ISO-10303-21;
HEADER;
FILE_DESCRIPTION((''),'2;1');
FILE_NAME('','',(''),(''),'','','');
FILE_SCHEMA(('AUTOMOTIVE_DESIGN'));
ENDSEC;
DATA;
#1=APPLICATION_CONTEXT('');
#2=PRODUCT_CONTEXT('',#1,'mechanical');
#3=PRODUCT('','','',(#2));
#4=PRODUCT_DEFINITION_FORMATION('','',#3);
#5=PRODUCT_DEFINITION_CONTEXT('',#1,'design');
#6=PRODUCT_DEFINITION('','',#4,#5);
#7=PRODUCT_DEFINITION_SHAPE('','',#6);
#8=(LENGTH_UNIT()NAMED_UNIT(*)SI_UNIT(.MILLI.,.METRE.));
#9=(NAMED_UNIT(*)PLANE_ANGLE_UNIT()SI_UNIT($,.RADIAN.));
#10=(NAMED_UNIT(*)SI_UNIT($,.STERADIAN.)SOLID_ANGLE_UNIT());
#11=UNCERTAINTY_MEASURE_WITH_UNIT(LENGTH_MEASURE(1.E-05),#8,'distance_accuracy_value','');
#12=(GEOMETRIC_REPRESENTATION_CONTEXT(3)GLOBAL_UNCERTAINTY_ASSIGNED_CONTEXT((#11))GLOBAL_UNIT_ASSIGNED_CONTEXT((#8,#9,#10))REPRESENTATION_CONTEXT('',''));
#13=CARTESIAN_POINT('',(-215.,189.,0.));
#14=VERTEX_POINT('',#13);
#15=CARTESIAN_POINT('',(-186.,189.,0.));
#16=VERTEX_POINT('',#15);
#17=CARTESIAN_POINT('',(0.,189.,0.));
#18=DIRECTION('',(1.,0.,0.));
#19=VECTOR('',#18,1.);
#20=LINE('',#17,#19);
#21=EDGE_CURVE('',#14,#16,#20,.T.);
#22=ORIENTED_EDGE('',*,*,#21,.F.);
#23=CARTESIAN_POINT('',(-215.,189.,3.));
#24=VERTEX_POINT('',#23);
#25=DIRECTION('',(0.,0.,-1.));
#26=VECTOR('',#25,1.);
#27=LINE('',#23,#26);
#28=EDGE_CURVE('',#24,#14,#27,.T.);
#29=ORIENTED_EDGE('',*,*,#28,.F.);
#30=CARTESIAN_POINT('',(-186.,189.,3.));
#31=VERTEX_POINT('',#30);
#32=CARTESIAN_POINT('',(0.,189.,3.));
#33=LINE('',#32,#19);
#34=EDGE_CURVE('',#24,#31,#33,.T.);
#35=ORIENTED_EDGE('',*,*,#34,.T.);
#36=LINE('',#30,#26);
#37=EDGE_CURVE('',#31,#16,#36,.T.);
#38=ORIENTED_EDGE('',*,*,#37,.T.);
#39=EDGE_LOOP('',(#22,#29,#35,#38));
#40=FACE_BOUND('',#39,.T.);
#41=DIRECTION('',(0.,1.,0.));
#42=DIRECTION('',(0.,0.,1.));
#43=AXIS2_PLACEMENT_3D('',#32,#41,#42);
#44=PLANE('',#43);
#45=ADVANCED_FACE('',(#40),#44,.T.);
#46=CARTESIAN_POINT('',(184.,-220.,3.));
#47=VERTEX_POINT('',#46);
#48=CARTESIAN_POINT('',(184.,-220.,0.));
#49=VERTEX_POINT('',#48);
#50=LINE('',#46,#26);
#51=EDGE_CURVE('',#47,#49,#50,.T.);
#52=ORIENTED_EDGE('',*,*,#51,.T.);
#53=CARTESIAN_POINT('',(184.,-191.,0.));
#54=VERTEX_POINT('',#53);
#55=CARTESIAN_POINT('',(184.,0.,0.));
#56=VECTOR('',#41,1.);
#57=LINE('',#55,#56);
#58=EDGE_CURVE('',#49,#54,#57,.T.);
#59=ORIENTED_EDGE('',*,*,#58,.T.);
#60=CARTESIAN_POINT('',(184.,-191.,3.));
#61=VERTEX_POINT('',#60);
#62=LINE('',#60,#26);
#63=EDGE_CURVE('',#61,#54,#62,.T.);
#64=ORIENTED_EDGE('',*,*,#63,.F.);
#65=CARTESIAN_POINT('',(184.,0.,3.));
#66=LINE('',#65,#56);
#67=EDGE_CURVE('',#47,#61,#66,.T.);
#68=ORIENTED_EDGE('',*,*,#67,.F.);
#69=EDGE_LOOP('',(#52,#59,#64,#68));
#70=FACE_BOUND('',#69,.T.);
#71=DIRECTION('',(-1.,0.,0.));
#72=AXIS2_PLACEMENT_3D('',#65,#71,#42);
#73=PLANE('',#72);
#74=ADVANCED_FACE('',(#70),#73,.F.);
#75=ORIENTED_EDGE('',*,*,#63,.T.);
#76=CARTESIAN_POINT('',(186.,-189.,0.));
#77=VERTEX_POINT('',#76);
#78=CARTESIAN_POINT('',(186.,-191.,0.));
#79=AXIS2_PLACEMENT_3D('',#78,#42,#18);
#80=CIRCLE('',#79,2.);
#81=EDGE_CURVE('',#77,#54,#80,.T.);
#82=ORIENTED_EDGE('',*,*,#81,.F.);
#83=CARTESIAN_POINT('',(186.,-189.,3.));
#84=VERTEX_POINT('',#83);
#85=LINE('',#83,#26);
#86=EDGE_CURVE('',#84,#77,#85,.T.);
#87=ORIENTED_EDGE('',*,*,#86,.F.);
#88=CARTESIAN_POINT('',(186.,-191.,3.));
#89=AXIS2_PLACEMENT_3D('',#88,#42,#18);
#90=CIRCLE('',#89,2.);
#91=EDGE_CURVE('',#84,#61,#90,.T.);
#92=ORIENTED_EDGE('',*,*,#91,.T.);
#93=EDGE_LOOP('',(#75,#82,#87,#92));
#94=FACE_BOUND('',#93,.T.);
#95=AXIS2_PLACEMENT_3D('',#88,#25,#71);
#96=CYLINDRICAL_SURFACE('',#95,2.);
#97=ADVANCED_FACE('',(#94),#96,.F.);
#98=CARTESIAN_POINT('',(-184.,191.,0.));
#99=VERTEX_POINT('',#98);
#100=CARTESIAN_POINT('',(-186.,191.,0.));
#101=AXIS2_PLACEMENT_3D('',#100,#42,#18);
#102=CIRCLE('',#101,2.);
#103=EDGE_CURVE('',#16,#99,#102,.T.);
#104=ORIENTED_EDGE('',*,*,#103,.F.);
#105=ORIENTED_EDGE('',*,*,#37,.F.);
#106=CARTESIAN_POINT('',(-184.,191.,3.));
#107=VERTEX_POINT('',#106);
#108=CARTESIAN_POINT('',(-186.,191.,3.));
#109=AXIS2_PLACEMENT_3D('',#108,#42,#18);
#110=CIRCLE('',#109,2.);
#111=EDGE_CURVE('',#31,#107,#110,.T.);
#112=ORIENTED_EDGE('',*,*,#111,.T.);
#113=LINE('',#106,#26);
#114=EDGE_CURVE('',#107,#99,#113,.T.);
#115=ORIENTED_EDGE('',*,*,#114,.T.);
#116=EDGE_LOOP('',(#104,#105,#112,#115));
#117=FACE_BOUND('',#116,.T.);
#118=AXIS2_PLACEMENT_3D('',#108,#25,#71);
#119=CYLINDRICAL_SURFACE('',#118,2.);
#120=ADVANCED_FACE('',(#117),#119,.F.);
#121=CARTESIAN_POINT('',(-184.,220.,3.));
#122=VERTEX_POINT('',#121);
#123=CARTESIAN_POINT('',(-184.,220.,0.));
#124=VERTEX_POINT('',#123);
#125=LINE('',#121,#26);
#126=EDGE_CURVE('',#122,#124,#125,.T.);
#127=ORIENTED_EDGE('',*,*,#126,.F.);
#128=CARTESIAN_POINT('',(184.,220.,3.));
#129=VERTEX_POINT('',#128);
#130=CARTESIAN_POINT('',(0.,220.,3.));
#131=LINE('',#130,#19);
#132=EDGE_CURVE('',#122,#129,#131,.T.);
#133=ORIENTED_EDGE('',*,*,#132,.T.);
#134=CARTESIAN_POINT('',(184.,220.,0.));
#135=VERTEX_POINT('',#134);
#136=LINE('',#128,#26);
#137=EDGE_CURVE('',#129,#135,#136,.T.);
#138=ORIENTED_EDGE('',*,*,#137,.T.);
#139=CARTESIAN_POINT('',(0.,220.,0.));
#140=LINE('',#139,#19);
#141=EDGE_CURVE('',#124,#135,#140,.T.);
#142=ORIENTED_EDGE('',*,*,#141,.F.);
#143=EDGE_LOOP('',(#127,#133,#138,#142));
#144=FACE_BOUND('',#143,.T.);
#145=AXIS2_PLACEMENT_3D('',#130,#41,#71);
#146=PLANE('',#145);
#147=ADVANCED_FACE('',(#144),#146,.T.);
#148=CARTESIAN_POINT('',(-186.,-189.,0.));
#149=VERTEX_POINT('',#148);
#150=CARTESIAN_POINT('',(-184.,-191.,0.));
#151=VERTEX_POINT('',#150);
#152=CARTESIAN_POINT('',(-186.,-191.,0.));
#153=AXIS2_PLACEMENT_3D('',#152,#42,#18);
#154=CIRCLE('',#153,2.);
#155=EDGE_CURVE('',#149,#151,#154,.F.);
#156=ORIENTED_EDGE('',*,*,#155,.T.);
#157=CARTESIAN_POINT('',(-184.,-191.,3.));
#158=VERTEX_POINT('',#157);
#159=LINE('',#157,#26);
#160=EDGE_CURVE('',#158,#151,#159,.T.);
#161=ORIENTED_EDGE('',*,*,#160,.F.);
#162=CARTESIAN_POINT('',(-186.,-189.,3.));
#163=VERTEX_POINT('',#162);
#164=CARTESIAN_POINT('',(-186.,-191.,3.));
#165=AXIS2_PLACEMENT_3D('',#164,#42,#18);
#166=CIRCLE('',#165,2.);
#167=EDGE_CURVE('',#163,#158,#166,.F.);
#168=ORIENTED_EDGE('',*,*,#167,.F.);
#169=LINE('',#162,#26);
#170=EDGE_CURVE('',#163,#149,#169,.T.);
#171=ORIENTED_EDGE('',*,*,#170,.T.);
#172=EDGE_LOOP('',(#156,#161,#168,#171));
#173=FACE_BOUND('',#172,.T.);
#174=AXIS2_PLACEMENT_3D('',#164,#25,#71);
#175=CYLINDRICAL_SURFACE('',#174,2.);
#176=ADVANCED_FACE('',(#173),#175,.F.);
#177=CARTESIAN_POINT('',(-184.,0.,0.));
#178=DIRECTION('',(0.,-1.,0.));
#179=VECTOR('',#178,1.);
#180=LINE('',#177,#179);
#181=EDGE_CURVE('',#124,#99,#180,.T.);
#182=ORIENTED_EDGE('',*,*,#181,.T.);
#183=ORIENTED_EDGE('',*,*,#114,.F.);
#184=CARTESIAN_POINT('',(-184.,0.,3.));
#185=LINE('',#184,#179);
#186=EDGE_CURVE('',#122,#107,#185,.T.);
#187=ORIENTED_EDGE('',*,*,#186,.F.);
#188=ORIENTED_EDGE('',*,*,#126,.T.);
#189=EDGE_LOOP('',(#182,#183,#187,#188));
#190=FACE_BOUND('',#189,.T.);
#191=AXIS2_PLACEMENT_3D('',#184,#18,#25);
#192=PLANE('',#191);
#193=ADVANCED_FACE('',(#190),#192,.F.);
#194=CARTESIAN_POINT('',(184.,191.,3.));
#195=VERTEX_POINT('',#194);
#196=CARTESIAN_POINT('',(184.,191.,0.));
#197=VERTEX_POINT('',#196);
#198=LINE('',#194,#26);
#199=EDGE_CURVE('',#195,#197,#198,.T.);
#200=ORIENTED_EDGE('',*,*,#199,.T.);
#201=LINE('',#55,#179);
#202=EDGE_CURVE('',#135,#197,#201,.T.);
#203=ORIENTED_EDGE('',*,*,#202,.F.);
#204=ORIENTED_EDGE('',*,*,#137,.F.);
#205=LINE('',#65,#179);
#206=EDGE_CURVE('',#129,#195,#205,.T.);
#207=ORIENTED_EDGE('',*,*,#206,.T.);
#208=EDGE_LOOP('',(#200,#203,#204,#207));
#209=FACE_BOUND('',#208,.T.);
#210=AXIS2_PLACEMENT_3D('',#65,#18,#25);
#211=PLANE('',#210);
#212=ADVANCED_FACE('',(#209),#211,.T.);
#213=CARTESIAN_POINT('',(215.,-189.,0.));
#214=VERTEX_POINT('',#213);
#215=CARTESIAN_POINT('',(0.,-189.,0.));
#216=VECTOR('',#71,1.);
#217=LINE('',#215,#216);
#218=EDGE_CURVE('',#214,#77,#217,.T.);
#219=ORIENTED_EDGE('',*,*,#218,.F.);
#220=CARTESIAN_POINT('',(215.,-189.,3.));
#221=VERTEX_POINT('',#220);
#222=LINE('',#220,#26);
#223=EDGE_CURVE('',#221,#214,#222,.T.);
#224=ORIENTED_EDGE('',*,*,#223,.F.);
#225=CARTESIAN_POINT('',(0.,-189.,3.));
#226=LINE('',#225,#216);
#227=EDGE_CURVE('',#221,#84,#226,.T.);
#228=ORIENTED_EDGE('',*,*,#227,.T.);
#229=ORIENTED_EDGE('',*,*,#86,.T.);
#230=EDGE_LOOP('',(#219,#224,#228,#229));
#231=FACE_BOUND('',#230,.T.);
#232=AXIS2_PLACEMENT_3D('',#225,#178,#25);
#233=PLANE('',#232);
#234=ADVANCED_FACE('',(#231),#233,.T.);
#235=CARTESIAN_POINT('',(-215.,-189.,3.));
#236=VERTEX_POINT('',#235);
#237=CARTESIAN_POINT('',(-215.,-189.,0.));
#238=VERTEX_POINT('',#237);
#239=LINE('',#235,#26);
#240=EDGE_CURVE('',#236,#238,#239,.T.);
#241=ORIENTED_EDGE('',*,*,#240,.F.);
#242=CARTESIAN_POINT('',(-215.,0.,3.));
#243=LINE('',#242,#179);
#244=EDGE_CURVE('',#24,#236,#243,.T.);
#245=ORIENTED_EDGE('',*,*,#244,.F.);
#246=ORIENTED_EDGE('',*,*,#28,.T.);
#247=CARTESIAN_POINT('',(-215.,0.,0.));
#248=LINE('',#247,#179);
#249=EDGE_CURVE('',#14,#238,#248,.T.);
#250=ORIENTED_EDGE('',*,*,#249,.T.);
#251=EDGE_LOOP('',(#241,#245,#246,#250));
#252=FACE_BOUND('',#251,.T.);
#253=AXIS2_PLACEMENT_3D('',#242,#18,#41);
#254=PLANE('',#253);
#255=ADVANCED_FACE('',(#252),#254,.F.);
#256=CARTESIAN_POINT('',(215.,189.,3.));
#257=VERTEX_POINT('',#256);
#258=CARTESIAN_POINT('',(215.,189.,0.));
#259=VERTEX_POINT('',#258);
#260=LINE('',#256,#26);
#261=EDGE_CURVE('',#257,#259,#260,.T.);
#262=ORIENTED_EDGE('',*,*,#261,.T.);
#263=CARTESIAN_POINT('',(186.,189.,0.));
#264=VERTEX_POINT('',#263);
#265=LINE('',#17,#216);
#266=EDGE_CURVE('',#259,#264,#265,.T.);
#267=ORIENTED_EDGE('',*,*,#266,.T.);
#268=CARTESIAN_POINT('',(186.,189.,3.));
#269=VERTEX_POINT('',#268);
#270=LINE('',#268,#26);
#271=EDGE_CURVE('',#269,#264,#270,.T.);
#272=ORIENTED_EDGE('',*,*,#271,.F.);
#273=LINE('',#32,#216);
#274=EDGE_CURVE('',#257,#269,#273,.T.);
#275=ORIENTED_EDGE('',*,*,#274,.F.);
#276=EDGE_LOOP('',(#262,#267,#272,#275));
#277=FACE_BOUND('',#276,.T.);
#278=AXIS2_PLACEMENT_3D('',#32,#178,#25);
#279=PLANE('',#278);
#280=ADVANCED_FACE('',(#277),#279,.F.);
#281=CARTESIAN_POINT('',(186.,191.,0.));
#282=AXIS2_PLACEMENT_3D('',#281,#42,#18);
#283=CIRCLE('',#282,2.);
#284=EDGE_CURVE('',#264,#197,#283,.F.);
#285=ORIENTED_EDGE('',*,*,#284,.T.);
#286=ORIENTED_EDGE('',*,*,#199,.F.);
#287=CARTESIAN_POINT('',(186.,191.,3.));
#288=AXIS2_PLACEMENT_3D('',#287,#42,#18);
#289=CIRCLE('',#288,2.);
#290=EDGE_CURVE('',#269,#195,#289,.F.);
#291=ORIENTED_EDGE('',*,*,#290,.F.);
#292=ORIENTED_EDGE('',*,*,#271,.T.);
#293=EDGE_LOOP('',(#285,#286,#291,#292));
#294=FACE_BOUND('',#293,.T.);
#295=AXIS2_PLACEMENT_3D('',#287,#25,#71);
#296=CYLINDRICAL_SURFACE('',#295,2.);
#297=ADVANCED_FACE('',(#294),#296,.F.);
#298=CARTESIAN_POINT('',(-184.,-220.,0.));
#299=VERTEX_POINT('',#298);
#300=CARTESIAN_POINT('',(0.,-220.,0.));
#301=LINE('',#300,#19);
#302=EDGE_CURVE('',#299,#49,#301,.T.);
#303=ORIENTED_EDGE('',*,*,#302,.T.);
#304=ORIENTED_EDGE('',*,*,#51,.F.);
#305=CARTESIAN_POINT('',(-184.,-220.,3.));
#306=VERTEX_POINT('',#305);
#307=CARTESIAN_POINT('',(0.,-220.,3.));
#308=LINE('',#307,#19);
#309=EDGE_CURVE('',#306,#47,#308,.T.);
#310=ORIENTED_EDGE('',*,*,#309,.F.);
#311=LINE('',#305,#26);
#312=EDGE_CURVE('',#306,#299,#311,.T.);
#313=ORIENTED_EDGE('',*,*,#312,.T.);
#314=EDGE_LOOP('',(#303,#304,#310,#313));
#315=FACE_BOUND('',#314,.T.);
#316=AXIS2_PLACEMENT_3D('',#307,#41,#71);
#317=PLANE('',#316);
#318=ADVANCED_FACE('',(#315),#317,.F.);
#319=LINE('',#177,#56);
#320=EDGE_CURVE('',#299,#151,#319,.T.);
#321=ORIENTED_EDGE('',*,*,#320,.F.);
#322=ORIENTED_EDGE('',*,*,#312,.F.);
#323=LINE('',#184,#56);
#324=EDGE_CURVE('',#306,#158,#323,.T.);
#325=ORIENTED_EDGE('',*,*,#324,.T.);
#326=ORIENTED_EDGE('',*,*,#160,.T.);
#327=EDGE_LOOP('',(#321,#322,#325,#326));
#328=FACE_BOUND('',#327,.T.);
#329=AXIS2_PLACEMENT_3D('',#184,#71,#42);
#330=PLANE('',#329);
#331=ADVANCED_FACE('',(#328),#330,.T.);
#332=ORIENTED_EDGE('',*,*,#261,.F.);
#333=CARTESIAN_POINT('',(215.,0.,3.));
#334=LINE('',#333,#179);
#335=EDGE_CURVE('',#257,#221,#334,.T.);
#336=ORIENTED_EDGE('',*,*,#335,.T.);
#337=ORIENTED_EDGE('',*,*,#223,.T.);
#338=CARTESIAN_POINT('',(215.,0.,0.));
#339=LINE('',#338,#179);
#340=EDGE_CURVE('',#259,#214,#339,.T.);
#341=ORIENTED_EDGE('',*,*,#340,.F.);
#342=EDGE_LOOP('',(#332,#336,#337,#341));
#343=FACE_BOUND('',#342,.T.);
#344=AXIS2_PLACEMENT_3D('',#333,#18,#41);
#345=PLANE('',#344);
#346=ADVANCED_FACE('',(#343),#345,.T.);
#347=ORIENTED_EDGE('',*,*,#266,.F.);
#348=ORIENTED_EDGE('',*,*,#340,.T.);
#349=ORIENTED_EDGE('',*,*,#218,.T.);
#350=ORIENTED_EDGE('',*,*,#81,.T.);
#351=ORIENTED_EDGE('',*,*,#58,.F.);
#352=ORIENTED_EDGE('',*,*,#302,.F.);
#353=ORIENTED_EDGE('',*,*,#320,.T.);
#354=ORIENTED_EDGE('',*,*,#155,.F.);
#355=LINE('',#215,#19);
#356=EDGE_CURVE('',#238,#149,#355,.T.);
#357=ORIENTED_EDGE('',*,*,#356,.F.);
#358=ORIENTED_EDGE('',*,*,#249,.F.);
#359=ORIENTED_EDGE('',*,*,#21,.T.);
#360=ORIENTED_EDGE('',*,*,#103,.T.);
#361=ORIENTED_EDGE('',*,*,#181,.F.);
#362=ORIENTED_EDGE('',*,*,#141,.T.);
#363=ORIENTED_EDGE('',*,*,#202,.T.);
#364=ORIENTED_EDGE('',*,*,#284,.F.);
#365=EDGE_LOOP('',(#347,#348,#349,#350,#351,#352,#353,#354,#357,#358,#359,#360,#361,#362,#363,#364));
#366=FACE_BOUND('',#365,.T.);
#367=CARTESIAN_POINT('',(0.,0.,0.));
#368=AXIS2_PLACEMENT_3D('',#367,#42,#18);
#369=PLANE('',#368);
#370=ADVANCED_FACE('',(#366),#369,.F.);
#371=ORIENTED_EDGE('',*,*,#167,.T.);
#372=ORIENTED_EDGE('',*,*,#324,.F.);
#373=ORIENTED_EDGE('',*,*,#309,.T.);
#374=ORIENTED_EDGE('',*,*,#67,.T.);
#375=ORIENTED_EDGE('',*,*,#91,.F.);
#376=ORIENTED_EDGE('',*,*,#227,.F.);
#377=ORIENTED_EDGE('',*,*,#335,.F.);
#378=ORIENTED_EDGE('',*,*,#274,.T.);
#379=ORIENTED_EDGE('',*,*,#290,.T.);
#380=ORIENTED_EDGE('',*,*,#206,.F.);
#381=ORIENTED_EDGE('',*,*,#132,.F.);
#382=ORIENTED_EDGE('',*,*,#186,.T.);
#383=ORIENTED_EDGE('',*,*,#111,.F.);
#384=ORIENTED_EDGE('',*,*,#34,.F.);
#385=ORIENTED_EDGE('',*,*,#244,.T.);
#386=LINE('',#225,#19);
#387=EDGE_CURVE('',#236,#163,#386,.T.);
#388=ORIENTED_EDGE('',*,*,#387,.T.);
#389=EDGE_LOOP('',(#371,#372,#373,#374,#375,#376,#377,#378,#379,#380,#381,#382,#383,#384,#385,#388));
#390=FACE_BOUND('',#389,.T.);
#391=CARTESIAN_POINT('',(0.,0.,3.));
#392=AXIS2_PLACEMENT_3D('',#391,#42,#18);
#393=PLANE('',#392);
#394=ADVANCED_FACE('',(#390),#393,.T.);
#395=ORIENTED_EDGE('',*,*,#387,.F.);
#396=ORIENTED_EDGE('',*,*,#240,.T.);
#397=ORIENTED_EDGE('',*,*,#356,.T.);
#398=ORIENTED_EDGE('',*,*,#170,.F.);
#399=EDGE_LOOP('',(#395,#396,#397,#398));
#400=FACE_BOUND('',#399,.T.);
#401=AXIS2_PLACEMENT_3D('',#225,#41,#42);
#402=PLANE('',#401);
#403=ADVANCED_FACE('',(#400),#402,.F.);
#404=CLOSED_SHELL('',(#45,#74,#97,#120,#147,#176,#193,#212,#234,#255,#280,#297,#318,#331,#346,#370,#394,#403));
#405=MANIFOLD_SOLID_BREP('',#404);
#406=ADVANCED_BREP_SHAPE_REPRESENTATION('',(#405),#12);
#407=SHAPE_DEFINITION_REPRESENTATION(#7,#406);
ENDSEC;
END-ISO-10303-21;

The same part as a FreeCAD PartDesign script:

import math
import FreeCAD as App
import Part
import Sketcher
from FreeCAD import Vector

doc = App.newDocument("Part")
body = doc.addObject("PartDesign::Body", "Body")

# Sketch on XY plane
sketch1 = doc.addObject("Sketcher::SketchObject", "Sketch")
body.addObject(sketch1)
sketch1.AttachmentSupport = (doc.XY_Plane, [""])
sketch1.MapMode = "FlatFace"
sketch1.addGeometry([
    Part.LineSegment(Vector(215, -189, 0), Vector(215, 189, 0)),  # 0
    Part.LineSegment(Vector(215, 189, 0), Vector(186, 189, 0)),  # 1
    Part.ArcOfCircle(Part.Circle(Vector(186, 191, 0), Vector(0, 0, 1), 2), math.radians(-180), math.radians(-90)),  # 2
    Part.LineSegment(Vector(184, 191, 0), Vector(184, 220, 0)),  # 3
    Part.LineSegment(Vector(184, 220, 0), Vector(-184, 220, 0)),  # 4
    Part.LineSegment(Vector(-184, 220, 0), Vector(-184, 191, 0)),  # 5
    Part.ArcOfCircle(Part.Circle(Vector(-186, 191, 0), Vector(0, 0, 1), 2), math.radians(-90), math.radians(0)),  # 6
    Part.LineSegment(Vector(-186, 189, 0), Vector(-215, 189, 0)),  # 7
    Part.LineSegment(Vector(-215, 189, 0), Vector(-215, -189, 0)),  # 8
    Part.LineSegment(Vector(-215, -189, 0), Vector(-186, -189, 0)),  # 9
    Part.ArcOfCircle(Part.Circle(Vector(-186, -191, 0), Vector(0, 0, 1), 2), math.radians(0), math.radians(90)),  # 10
    Part.LineSegment(Vector(-184, -191, 0), Vector(-184, -220, 0)),  # 11
    Part.LineSegment(Vector(-184, -220, 0), Vector(184, -220, 0)),  # 12
    Part.LineSegment(Vector(184, -220, 0), Vector(184, -191, 0)),  # 13
    Part.ArcOfCircle(Part.Circle(Vector(186, -191, 0), Vector(0, 0, 1), 2), math.radians(90), math.radians(180)),  # 14
    Part.LineSegment(Vector(186, -189, 0), Vector(215, -189, 0)),  # 15
], False)
sketch1.addConstraint([
    Sketcher.Constraint("Coincident", 0, 2, 1, 1),
    Sketcher.Constraint("Tangent", 1, 2, 2, 2),
    Sketcher.Constraint("Tangent", 2, 1, 3, 1),
    Sketcher.Constraint("Coincident", 3, 2, 4, 1),
    Sketcher.Constraint("Coincident", 4, 2, 5, 1),
    Sketcher.Constraint("Tangent", 5, 2, 6, 2),
    Sketcher.Constraint("Tangent", 6, 1, 7, 1),
    Sketcher.Constraint("Coincident", 7, 2, 8, 1),
    Sketcher.Constraint("Coincident", 8, 2, 9, 1),
    Sketcher.Constraint("Tangent", 9, 2, 10, 2),
    Sketcher.Constraint("Tangent", 10, 1, 11, 1),
    Sketcher.Constraint("Coincident", 11, 2, 12, 1),
    Sketcher.Constraint("Coincident", 12, 2, 13, 1),
    Sketcher.Constraint("Tangent", 13, 2, 14, 2),
    Sketcher.Constraint("Tangent", 14, 1, 15, 1),
    Sketcher.Constraint("Coincident", 15, 2, 0, 1),
    Sketcher.Constraint("Vertical", 0),
    Sketcher.Constraint("Horizontal", 1),
    Sketcher.Constraint("Vertical", 3),
    Sketcher.Constraint("Horizontal", 4),
    Sketcher.Constraint("Vertical", 5),
    Sketcher.Constraint("Horizontal", 7),
    Sketcher.Constraint("Vertical", 8),
    Sketcher.Constraint("Horizontal", 9),
    Sketcher.Constraint("Vertical", 11),
    Sketcher.Constraint("Horizontal", 12),
    Sketcher.Constraint("Vertical", 13),
    Sketcher.Constraint("Horizontal", 15),
    Sketcher.Constraint("Equal", 2, 6),
    Sketcher.Constraint("Equal", 6, 10),
    Sketcher.Constraint("Equal", 10, 14),
    Sketcher.Constraint("Symmetric", 2, 3, 10, 3, -1, 1),
    Sketcher.Constraint("Symmetric", 6, 3, 14, 3, -1, 1),
    Sketcher.Constraint("Symmetric", 2, 3, 6, 3, -2),
    Sketcher.Constraint("Equal", 1, 7),
    Sketcher.Constraint("Equal", 15, 3),
    Sketcher.Constraint("Equal", 5, 11),
    Sketcher.Constraint("Radius", 2, 2.0),
    Sketcher.Constraint("DistanceX", 1, 2, 1, 1, 29.0),
    Sketcher.Constraint("DistanceX", 4, 2, 4, 1, 368.0),
    Sketcher.Constraint("DistanceY", 0, 1, 0, 2, 378.0),
])
pad1 = doc.addObject("PartDesign::Pad", "Pad")
body.addObject(pad1)
pad1.Profile = sketch1
pad1.Length = 3

doc.recompute()
